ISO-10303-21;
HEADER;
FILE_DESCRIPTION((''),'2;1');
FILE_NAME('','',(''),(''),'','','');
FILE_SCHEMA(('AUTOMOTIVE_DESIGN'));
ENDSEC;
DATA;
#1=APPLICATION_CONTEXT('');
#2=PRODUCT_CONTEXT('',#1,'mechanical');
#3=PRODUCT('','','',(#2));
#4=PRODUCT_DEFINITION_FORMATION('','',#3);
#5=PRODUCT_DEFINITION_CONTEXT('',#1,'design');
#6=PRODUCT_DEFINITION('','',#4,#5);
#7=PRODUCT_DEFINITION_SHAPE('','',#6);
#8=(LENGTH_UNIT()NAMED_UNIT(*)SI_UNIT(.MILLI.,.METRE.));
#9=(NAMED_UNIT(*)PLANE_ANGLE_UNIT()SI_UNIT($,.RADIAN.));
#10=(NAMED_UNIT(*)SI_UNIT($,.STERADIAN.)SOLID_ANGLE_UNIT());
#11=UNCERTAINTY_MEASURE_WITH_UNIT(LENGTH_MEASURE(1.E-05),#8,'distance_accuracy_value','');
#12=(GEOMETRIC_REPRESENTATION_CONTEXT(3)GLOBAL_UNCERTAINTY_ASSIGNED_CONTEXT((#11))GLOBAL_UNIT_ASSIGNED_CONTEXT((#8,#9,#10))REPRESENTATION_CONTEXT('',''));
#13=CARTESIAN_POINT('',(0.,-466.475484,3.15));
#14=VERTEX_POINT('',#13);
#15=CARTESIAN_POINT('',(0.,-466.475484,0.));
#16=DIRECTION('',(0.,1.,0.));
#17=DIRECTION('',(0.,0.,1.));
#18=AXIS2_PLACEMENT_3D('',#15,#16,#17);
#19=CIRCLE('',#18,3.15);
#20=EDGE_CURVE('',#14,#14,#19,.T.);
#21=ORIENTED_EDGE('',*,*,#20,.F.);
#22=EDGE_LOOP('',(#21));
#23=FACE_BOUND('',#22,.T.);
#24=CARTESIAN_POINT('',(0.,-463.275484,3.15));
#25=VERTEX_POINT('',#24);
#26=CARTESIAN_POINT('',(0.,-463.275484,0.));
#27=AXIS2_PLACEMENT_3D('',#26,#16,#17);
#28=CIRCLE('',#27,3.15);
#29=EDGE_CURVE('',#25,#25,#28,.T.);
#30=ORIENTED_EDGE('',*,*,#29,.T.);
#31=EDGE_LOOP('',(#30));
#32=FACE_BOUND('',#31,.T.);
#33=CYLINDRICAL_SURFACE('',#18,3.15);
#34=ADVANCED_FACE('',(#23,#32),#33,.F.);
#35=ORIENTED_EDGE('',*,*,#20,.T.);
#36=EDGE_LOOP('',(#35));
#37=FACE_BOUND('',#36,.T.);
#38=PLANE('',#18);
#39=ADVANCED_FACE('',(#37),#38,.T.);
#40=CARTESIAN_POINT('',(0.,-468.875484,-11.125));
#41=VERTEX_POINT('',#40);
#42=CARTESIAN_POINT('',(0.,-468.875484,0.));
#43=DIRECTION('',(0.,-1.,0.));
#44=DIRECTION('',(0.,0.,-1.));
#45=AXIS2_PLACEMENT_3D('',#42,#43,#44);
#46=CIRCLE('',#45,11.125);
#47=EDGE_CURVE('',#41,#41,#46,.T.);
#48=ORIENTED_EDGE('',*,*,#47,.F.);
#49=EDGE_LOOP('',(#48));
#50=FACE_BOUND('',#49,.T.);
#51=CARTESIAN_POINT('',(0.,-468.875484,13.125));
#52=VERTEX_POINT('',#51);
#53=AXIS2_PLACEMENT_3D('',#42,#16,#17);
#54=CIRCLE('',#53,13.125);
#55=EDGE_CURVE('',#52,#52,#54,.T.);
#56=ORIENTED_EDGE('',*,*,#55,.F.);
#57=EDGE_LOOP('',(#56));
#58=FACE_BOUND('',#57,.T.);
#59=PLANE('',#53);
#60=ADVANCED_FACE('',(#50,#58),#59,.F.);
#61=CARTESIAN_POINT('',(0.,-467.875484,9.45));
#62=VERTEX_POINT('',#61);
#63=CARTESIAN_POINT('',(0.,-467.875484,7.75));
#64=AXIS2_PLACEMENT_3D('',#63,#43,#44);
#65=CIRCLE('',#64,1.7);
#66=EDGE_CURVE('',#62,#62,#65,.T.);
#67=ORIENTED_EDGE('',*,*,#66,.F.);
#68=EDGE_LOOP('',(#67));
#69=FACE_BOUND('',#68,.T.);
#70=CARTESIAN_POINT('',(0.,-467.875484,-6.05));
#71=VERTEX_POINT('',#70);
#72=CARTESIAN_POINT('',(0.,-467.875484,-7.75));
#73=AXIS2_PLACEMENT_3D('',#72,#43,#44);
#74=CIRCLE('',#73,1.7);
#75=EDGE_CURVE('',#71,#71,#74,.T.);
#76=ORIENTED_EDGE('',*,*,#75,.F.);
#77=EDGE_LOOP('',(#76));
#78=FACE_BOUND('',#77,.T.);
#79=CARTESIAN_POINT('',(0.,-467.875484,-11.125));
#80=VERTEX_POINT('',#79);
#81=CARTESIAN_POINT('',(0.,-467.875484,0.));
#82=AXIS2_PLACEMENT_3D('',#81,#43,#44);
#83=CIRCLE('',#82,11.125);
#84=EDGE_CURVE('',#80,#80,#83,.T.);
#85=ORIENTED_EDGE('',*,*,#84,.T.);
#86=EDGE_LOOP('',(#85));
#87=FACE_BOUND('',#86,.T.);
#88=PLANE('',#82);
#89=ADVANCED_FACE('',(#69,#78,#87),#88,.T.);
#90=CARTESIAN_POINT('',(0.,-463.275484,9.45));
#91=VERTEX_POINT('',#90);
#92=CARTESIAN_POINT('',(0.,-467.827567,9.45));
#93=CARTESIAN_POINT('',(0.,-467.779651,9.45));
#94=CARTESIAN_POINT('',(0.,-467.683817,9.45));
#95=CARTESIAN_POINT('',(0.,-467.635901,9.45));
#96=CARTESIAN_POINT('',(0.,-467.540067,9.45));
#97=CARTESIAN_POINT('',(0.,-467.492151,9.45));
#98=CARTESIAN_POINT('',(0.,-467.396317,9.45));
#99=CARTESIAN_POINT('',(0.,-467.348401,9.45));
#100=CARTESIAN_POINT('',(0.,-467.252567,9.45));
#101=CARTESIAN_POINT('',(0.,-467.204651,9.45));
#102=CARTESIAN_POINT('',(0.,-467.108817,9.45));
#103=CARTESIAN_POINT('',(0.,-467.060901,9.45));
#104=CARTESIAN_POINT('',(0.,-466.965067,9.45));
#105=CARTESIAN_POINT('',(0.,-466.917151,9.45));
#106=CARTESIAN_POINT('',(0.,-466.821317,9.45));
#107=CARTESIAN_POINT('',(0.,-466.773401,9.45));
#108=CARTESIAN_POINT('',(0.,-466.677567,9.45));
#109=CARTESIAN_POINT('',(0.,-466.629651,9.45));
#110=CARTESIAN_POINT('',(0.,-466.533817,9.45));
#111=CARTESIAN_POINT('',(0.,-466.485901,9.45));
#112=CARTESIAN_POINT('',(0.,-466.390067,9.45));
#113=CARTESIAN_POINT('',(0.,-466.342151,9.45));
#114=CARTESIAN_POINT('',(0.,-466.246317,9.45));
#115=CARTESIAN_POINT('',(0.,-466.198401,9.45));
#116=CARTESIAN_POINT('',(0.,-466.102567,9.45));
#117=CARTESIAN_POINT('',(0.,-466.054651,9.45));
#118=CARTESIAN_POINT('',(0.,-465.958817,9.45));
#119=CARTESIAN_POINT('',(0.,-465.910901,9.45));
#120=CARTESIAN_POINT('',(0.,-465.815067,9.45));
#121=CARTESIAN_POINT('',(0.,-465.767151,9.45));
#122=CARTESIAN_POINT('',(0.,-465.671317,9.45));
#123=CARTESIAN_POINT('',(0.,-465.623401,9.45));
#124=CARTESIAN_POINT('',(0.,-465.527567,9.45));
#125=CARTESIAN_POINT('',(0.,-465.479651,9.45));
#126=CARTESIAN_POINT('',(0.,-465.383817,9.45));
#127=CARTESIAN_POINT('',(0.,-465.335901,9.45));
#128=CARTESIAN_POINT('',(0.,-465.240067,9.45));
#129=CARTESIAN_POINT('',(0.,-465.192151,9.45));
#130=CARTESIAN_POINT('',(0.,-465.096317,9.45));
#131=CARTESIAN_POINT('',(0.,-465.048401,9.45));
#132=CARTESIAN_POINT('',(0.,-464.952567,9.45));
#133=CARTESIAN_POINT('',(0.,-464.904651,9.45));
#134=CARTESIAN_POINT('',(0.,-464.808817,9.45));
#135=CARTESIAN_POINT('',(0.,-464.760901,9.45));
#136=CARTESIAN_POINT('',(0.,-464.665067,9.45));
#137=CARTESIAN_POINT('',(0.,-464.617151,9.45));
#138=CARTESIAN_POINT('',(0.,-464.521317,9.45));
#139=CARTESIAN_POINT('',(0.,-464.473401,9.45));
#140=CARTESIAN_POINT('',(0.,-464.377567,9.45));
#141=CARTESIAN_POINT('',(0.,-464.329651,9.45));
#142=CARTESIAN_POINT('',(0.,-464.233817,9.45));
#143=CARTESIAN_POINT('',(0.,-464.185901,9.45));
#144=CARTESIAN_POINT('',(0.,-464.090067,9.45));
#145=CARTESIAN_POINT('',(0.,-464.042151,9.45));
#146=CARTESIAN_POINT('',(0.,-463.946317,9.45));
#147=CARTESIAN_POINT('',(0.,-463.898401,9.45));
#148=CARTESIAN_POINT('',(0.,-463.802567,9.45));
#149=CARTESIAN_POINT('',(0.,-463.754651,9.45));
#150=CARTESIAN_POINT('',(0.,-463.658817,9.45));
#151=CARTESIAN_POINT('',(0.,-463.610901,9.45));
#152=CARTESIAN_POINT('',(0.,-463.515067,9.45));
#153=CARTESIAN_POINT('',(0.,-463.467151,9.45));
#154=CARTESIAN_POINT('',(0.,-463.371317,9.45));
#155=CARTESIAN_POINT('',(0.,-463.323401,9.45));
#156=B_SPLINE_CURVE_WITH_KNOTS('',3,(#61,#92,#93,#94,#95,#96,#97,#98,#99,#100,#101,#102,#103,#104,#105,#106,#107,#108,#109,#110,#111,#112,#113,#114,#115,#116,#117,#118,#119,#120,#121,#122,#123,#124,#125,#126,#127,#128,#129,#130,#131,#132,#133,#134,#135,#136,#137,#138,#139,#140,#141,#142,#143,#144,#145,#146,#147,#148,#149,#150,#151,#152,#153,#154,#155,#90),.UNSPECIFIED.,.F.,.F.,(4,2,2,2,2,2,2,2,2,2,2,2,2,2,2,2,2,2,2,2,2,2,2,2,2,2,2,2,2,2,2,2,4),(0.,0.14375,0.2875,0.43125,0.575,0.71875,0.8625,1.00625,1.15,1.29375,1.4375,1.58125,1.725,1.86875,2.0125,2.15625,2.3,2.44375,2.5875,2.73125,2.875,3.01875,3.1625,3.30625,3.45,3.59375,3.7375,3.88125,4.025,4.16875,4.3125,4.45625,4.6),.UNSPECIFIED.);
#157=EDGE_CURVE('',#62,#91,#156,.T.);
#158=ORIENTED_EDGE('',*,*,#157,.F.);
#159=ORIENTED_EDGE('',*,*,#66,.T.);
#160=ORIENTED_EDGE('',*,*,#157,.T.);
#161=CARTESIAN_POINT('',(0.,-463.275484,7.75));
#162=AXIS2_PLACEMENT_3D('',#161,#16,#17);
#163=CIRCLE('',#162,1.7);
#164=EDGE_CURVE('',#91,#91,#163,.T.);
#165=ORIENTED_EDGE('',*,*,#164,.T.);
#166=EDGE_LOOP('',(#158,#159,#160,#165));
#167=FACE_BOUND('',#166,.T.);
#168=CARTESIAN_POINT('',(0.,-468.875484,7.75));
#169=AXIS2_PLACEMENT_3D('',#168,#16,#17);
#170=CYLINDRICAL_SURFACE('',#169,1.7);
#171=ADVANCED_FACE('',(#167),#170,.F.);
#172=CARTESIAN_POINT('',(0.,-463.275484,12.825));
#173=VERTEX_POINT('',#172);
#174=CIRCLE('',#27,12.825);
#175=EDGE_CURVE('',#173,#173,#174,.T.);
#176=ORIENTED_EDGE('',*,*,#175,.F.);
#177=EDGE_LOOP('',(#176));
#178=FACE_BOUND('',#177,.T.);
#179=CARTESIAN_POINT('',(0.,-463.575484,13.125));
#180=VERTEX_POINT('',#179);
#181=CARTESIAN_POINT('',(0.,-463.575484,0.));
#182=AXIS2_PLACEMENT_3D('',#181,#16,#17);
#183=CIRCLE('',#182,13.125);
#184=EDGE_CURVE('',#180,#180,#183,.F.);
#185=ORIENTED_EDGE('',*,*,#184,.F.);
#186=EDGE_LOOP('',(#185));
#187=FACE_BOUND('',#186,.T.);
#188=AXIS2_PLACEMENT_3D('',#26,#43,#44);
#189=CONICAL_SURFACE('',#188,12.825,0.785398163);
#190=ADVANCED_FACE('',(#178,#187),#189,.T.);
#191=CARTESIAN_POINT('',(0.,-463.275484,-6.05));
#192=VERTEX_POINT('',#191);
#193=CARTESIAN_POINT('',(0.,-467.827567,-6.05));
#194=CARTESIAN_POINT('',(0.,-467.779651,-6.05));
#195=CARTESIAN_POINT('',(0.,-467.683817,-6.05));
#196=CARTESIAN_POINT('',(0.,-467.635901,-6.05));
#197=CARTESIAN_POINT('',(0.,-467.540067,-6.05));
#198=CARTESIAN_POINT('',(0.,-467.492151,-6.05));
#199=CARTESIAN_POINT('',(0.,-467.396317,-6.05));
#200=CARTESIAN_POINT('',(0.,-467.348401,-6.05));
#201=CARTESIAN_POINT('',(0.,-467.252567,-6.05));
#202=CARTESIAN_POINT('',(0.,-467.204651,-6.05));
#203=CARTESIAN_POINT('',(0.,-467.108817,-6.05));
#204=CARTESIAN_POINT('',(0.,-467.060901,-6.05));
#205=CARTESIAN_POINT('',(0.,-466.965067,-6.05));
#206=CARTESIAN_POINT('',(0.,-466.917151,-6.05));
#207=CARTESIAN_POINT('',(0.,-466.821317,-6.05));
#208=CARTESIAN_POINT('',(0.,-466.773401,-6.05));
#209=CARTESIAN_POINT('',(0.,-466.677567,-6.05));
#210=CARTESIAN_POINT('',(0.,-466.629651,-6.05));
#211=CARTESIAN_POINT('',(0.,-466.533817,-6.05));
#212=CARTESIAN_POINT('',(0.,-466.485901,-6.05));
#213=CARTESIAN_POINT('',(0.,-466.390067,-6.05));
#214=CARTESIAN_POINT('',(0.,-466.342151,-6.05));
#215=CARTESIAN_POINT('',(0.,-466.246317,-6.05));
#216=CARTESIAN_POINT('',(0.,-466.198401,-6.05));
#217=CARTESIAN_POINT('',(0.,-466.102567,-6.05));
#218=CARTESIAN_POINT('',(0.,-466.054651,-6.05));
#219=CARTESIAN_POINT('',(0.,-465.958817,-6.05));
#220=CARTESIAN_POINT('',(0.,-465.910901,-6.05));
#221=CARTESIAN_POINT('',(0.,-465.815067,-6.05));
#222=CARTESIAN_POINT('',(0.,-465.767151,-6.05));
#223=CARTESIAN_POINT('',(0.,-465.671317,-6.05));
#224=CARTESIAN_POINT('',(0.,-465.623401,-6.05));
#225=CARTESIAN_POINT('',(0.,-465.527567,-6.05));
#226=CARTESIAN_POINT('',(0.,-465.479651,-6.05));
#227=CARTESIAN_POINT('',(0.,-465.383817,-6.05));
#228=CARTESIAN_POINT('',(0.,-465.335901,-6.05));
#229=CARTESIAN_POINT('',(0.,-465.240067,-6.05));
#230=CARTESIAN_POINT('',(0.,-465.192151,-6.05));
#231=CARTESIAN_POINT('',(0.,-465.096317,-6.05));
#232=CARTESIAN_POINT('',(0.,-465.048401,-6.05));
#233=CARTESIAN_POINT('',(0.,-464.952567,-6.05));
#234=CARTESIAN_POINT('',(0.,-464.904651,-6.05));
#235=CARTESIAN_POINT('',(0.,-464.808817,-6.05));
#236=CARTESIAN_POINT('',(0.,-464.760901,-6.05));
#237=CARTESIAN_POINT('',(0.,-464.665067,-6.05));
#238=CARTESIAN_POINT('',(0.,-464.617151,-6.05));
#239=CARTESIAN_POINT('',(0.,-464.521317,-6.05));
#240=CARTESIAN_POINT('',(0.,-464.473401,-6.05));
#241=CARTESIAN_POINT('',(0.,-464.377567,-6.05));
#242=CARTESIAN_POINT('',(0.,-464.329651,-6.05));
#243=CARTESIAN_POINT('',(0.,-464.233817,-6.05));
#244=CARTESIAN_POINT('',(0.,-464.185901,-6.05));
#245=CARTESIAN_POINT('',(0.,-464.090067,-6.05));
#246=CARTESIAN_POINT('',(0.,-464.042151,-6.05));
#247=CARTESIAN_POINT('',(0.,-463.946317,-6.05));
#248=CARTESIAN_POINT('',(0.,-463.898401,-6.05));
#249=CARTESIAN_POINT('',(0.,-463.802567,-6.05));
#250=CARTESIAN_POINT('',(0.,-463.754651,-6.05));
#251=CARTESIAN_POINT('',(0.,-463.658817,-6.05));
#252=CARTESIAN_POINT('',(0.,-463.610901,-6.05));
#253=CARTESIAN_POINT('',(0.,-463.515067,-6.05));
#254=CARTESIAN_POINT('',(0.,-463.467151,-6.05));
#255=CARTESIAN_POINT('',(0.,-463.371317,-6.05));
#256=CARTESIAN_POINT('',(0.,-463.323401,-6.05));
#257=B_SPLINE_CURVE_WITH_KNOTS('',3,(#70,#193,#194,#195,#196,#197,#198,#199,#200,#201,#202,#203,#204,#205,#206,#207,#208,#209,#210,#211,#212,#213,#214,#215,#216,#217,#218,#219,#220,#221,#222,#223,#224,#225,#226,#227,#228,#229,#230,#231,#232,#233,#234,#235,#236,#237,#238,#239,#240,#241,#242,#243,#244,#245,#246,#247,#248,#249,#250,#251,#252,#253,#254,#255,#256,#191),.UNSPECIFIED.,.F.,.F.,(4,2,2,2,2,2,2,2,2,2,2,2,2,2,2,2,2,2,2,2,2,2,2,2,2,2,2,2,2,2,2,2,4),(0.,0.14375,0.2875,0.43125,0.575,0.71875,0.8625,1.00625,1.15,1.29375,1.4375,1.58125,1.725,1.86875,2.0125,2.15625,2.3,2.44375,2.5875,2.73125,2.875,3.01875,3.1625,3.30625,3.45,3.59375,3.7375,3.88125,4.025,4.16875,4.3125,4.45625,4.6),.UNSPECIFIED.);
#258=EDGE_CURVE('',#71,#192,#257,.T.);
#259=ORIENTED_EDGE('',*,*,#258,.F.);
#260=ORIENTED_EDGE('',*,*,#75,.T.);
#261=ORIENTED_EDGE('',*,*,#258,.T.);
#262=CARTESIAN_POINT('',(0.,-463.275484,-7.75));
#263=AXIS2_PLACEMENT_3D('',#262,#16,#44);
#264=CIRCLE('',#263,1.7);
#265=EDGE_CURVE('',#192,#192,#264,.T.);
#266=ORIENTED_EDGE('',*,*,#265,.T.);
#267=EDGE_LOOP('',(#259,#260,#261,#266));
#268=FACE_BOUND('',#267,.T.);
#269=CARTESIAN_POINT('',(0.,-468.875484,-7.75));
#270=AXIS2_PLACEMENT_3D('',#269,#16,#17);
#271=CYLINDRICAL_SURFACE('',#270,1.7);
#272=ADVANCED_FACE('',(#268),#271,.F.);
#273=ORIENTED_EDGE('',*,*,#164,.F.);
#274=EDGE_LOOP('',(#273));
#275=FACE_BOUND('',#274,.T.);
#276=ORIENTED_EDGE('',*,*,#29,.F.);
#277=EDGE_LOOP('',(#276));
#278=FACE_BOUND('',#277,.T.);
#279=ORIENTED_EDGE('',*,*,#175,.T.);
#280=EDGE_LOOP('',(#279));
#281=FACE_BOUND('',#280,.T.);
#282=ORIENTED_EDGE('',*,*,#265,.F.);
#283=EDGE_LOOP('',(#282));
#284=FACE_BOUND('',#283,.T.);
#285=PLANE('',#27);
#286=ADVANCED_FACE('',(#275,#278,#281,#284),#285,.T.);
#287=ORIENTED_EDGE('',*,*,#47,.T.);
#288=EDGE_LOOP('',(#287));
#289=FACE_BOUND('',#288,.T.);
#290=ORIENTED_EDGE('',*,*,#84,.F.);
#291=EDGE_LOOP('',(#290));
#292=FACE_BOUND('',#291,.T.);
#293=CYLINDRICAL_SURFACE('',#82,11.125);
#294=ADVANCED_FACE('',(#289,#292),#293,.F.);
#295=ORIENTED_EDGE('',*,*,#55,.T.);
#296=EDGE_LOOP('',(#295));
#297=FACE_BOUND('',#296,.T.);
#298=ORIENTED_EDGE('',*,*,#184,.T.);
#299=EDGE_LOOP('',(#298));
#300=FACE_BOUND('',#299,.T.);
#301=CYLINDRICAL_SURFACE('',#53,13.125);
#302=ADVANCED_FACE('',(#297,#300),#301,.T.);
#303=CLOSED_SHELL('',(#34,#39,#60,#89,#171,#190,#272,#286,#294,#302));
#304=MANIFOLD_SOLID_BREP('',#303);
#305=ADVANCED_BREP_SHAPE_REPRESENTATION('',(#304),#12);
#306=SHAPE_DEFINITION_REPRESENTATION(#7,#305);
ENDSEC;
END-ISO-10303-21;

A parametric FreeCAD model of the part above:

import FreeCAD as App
import Part
import Sketcher

V = App.Vector


def edges_at(feature, points):
    """Names of the edges that pass closest to the given points."""
    edges = feature.Shape.Edges
    near = lambda p: min(range(len(edges)), key=lambda i: edges[i].distToShape(Part.Vertex(*p))[0])
    return sorted({f"Edge{near(p) + 1}" for p in points})

doc = App.newDocument("Part")
body = doc.addObject("PartDesign::Body", "Body")

sketch1 = body.newObject("Sketcher::SketchObject", "Sketch")
sketch1.AttachmentSupport = (doc.getObject("XZ_Plane"), [""])
sketch1.MapMode = "FlatFace"
sketch1.AttachmentOffset = App.Placement(V(0, 0, 463.275484), App.Rotation())
sketch1.addGeometry(Part.Circle(V(0, 0, 0), V(0, 0, 1), 13.125), False)
sketch1.addConstraint(Sketcher.Constraint("Coincident", 0, 3, -1, 1))
sketch1.addConstraint(Sketcher.Constraint("Diameter", 0, 26.25))
pad1 = body.newObject("PartDesign::Pad", "Pad")
pad1.Profile = sketch1
pad1.Length = 5.6

sketch2 = body.newObject("Sketcher::SketchObject", "Sketch001")
sketch2.AttachmentSupport = (doc.getObject("XZ_Plane"), [""])
sketch2.MapMode = "FlatFace"
sketch2.AttachmentOffset = App.Placement(V(0, 0, 468.875484), App.Rotation())
sketch2.addGeometry(Part.Circle(V(0, 0, 0), V(0, 0, 1), 11.125), False)
sketch2.addConstraint(Sketcher.Constraint("Coincident", 0, 3, -1, 1))
sketch2.addConstraint(Sketcher.Constraint("Diameter", 0, 22.25))
pocket1 = body.newObject("PartDesign::Pocket", "Pocket")
pocket1.Profile = sketch2
pocket1.Length = 1

sketch3 = body.newObject("Sketcher::SketchObject", "Sketch002")
sketch3.AttachmentSupport = (doc.getObject("XZ_Plane"), [""])
sketch3.MapMode = "FlatFace"
sketch3.AttachmentOffset = App.Placement(V(0, 0, 463.275484), App.Rotation())
sketch3.addGeometry(Part.Circle(V(0, 0, 0), V(0, 0, 1), 3.15), False)
sketch3.addConstraint(Sketcher.Constraint("Coincident", 0, 3, -1, 1))
sketch3.addConstraint(Sketcher.Constraint("Diameter", 0, 6.3))
pocket2 = body.newObject("PartDesign::Pocket", "Pocket001")
pocket2.Profile = sketch3
pocket2.Length = 3.2
pocket2.Reversed = True
doc.recompute()

chamfer = body.newObject("PartDesign::Chamfer", "Chamfer")
chamfer.Base = (pocket2, edges_at(pocket2, [(0, -463.275, -13.125)]))
chamfer.Size = 0.3

sketch4 = body.newObject("Sketcher::SketchObject", "Sketch003")
sketch4.AttachmentSupport = (doc.getObject("XZ_Plane"), [""])
sketch4.MapMode = "FlatFace"
sketch4.AttachmentOffset = App.Placement(V(0, 0, 463.275484), App.Rotation())
sketch4.addGeometry(Part.Circle(V(0, 7.75, 0), V(0, 0, 1), 1.7), False)
sketch4.addGeometry(Part.Circle(V(0, -7.75, 0), V(0, 0, 1), 1.7), False)
sketch4.addConstraint(Sketcher.Constraint("Equal", 0, 1))
sketch4.addConstraint(Sketcher.Constraint("Symmetric", 0, 3, 1, 3, -1, 1))
sketch4.addConstraint(Sketcher.Constraint("PointOnObject", 0, 3, -2))
sketch4.addConstraint(Sketcher.Constraint("Diameter", 0, 3.4))
sketch4.addConstraint(Sketcher.Constraint("DistanceY", 1, 3, 0, 3, 15.5))
pocket3 = body.newObject("PartDesign::Pocket", "Pocket002")
pocket3.Profile = sketch4
pocket3.Type = "ThroughAll"
pocket3.Reversed = True

doc.recompute()
